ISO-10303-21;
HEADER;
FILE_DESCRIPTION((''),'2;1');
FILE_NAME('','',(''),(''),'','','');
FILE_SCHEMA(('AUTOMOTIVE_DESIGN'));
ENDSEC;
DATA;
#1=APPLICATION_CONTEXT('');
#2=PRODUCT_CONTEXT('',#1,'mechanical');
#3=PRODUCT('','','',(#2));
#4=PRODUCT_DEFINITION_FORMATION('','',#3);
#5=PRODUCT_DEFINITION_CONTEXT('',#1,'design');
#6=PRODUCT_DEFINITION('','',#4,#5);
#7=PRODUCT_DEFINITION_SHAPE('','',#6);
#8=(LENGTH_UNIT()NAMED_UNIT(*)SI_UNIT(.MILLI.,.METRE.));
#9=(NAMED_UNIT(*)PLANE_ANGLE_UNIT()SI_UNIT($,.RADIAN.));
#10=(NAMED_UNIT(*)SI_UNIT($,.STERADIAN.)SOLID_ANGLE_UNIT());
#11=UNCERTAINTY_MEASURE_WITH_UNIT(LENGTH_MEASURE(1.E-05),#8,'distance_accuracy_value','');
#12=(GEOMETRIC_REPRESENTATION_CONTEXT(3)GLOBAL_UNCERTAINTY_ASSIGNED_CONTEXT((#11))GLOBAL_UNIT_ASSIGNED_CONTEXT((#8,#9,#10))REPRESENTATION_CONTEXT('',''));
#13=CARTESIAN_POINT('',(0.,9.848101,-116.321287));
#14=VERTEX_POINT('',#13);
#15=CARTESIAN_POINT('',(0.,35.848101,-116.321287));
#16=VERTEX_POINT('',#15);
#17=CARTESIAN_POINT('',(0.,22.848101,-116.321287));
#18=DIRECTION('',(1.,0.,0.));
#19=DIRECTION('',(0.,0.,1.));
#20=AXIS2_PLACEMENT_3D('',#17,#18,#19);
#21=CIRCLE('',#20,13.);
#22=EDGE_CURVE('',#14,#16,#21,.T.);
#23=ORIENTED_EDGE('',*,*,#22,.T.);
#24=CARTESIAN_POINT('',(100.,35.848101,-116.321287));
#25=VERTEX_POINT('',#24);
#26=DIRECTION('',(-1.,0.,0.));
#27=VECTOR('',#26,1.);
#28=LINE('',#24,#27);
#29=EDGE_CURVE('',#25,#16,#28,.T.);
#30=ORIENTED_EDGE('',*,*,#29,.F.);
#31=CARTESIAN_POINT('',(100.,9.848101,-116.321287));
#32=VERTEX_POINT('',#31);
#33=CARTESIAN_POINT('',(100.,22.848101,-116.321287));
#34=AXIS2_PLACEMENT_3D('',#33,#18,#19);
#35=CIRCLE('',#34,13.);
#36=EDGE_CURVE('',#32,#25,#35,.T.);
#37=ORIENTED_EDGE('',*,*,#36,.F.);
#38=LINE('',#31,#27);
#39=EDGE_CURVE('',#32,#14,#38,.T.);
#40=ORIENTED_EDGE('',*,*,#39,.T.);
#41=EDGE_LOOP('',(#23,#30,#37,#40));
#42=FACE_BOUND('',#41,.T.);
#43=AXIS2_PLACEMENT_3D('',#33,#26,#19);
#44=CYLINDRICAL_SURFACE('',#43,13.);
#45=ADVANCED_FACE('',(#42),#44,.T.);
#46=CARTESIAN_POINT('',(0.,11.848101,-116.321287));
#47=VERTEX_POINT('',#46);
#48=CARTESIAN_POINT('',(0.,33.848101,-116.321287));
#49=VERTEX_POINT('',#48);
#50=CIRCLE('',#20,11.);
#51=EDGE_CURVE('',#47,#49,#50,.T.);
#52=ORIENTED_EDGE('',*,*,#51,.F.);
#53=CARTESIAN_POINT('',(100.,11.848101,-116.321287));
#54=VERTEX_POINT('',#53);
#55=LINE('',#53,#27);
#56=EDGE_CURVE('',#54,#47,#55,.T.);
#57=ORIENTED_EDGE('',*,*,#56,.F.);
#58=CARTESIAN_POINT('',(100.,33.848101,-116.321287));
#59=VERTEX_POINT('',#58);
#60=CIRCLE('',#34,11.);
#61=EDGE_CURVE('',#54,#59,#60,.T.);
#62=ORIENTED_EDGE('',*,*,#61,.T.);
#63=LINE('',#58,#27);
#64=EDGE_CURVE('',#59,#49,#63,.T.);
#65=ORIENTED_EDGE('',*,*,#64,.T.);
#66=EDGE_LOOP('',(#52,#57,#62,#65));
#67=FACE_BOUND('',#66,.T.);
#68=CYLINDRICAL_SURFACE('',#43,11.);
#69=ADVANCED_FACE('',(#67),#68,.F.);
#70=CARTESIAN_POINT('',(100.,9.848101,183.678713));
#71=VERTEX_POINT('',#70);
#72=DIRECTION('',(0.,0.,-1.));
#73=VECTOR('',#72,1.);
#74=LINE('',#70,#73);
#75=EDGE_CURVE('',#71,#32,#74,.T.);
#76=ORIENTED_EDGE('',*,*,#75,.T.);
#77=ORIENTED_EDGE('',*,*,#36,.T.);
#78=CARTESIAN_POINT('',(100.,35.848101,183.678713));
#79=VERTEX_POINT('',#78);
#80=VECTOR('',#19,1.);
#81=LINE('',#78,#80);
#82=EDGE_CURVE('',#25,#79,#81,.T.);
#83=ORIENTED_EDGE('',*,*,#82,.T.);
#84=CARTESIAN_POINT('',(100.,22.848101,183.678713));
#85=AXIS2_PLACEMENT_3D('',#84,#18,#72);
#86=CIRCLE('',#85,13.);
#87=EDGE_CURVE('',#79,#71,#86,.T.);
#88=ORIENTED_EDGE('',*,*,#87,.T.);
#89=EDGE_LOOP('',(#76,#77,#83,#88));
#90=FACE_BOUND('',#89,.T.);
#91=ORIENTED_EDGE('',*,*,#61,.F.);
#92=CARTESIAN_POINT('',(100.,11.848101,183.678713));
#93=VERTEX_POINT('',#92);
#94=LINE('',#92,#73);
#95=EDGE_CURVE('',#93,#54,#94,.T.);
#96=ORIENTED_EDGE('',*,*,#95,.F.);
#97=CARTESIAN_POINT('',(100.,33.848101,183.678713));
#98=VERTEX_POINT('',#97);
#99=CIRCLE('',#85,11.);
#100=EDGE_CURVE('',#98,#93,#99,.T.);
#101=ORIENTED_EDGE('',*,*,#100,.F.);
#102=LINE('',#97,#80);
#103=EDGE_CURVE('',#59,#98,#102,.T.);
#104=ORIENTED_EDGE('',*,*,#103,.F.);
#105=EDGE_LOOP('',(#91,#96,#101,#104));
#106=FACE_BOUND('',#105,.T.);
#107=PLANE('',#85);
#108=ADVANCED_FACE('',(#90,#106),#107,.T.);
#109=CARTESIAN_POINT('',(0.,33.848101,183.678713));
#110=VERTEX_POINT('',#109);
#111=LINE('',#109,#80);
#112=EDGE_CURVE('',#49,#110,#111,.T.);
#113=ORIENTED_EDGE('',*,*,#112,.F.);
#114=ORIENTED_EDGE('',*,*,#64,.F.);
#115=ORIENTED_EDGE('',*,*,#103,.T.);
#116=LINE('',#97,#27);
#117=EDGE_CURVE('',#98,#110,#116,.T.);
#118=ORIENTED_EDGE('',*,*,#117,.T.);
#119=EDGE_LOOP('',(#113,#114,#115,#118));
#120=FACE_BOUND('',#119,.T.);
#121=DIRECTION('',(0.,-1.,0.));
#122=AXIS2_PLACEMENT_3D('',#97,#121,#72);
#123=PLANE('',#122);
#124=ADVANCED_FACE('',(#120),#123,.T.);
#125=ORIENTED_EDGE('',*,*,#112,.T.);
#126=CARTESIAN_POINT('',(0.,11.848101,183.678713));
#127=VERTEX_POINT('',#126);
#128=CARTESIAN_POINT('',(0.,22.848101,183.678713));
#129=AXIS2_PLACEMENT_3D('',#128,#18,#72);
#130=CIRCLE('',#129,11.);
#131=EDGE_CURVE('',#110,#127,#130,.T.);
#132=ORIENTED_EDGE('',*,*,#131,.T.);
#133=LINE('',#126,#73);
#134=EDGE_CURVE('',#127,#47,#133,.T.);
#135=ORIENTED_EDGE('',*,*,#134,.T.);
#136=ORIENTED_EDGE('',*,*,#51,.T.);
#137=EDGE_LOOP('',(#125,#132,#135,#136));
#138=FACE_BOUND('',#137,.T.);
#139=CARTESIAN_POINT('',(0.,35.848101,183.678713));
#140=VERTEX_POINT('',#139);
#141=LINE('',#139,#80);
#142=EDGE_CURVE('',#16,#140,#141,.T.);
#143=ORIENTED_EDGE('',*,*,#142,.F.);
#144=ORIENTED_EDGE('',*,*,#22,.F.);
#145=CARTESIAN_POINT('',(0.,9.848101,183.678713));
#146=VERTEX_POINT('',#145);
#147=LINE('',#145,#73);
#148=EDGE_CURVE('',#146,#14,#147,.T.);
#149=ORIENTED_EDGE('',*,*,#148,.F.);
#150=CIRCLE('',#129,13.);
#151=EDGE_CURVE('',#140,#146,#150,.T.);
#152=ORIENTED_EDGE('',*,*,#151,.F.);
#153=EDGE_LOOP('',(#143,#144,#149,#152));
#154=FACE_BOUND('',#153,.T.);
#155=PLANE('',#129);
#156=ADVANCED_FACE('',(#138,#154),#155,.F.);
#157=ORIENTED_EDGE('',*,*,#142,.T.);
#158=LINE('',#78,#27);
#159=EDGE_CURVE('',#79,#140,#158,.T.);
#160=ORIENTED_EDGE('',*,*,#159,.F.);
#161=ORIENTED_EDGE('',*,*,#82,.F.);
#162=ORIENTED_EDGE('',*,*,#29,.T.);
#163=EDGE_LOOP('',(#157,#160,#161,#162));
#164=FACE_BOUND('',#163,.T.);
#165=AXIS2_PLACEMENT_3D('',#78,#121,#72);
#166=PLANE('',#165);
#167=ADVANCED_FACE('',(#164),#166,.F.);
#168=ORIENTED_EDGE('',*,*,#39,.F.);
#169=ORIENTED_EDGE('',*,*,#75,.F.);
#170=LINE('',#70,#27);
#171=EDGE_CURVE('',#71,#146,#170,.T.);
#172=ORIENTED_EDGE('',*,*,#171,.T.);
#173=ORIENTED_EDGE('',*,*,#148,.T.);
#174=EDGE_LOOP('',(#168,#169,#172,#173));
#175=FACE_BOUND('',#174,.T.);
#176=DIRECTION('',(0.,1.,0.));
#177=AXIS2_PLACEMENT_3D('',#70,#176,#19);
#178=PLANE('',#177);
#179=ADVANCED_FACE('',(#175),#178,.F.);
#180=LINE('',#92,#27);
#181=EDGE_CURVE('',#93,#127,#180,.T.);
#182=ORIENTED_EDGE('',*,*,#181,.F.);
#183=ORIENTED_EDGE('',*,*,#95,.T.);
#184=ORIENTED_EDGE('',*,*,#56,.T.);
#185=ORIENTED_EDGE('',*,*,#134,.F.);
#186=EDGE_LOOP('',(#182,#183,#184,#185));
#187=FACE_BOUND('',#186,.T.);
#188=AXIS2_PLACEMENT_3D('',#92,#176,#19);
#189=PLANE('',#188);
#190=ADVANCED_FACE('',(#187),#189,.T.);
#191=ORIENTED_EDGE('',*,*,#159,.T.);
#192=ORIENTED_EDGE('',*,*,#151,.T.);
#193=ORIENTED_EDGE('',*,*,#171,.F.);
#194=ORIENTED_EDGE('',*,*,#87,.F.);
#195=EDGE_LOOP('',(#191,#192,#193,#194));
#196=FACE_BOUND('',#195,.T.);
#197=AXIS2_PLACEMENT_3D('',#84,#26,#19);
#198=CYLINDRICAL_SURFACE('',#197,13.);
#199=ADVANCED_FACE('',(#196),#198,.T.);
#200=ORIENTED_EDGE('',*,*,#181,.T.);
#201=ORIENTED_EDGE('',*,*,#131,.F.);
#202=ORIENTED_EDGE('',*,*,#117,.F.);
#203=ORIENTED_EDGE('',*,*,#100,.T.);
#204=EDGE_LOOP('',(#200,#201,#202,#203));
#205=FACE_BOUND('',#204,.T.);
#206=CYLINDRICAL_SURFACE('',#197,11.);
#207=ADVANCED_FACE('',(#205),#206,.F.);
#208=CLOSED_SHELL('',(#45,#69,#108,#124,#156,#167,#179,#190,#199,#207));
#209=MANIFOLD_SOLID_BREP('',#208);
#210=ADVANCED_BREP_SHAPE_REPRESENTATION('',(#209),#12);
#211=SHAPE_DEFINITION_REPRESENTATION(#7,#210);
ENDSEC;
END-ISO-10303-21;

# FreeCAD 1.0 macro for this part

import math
import FreeCAD as App
import Part
import Sketcher
from FreeCAD import Vector

doc = App.newDocument("Part")
body = doc.addObject("PartDesign::Body", "Body")

sketch1 = doc.addObject("Sketcher::SketchObject", "Sketch")
body.addObject(sketch1)
sketch1.AttachmentSupport = (doc.YZ_Plane, [""])
sketch1.MapMode = "FlatFace"
sketch1.addGeometry([
    Part.LineSegment(Vector(36, -116, 0), Vector(36, 184, 0)),
    Part.ArcOfCircle(Part.Circle(Vector(23, 184, 0), Vector(0, 0, 1), 13), math.radians(0), math.radians(180)),
    Part.LineSegment(Vector(10, 184, 0), Vector(10, -116, 0)),
    Part.ArcOfCircle(Part.Circle(Vector(23, -116, 0), Vector(0, 0, 1), 13), math.radians(180), math.radians(360)),
    Part.ArcOfCircle(Part.Circle(Vector(23, 184, 0), Vector(0, 0, 1), 11), math.radians(0), math.radians(180)),
    Part.LineSegment(Vector(34, 184, 0), Vector(34, -116, 0)),
    Part.ArcOfCircle(Part.Circle(Vector(23, -116, 0), Vector(0, 0, 1), 11), math.radians(180), math.radians(360)),
    Part.LineSegment(Vector(12, -116, 0), Vector(12, 184, 0)),
], False)
sketch1.addConstraint([
    Sketcher.Constraint("Tangent", 0, 2, 1, 1),
    Sketcher.Constraint("Tangent", 1, 2, 2, 1),
    Sketcher.Constraint("Tangent", 2, 2, 3, 1),
    Sketcher.Constraint("Tangent", 3, 2, 0, 1),
    Sketcher.Constraint("Tangent", 4, 1, 5, 1),
    Sketcher.Constraint("Tangent", 5, 2, 6, 2),
    Sketcher.Constraint("Tangent", 6, 1, 7, 1),
    Sketcher.Constraint("Tangent", 7, 2, 4, 2),
    Sketcher.Constraint("Vertical", 0),
    Sketcher.Constraint("Vertical", 2),
    Sketcher.Constraint("Vertical", 5),
    Sketcher.Constraint("Vertical", 7),
    Sketcher.Constraint("Coincident", 4, 3, 1, 3),
    Sketcher.Constraint("Horizontal", 6, 3, 2, 2),
    Sketcher.Constraint("Radius", 1, 13.0),
    Sketcher.Constraint("Radius", 4, 11.0),
    Sketcher.Constraint("DistanceY", 0, 1, 0, 2, 300.0),
    Sketcher.Constraint("DistanceX", -1, 1, 1, 3, 22.848101),
    Sketcher.Constraint("DistanceY", -1, 1, 1, 3, 183.678713),
])
pad1 = doc.addObject("PartDesign::Pad", "Pad")
body.addObject(pad1)
pad1.Profile = sketch1
pad1.Length = 100

doc.recompute()
